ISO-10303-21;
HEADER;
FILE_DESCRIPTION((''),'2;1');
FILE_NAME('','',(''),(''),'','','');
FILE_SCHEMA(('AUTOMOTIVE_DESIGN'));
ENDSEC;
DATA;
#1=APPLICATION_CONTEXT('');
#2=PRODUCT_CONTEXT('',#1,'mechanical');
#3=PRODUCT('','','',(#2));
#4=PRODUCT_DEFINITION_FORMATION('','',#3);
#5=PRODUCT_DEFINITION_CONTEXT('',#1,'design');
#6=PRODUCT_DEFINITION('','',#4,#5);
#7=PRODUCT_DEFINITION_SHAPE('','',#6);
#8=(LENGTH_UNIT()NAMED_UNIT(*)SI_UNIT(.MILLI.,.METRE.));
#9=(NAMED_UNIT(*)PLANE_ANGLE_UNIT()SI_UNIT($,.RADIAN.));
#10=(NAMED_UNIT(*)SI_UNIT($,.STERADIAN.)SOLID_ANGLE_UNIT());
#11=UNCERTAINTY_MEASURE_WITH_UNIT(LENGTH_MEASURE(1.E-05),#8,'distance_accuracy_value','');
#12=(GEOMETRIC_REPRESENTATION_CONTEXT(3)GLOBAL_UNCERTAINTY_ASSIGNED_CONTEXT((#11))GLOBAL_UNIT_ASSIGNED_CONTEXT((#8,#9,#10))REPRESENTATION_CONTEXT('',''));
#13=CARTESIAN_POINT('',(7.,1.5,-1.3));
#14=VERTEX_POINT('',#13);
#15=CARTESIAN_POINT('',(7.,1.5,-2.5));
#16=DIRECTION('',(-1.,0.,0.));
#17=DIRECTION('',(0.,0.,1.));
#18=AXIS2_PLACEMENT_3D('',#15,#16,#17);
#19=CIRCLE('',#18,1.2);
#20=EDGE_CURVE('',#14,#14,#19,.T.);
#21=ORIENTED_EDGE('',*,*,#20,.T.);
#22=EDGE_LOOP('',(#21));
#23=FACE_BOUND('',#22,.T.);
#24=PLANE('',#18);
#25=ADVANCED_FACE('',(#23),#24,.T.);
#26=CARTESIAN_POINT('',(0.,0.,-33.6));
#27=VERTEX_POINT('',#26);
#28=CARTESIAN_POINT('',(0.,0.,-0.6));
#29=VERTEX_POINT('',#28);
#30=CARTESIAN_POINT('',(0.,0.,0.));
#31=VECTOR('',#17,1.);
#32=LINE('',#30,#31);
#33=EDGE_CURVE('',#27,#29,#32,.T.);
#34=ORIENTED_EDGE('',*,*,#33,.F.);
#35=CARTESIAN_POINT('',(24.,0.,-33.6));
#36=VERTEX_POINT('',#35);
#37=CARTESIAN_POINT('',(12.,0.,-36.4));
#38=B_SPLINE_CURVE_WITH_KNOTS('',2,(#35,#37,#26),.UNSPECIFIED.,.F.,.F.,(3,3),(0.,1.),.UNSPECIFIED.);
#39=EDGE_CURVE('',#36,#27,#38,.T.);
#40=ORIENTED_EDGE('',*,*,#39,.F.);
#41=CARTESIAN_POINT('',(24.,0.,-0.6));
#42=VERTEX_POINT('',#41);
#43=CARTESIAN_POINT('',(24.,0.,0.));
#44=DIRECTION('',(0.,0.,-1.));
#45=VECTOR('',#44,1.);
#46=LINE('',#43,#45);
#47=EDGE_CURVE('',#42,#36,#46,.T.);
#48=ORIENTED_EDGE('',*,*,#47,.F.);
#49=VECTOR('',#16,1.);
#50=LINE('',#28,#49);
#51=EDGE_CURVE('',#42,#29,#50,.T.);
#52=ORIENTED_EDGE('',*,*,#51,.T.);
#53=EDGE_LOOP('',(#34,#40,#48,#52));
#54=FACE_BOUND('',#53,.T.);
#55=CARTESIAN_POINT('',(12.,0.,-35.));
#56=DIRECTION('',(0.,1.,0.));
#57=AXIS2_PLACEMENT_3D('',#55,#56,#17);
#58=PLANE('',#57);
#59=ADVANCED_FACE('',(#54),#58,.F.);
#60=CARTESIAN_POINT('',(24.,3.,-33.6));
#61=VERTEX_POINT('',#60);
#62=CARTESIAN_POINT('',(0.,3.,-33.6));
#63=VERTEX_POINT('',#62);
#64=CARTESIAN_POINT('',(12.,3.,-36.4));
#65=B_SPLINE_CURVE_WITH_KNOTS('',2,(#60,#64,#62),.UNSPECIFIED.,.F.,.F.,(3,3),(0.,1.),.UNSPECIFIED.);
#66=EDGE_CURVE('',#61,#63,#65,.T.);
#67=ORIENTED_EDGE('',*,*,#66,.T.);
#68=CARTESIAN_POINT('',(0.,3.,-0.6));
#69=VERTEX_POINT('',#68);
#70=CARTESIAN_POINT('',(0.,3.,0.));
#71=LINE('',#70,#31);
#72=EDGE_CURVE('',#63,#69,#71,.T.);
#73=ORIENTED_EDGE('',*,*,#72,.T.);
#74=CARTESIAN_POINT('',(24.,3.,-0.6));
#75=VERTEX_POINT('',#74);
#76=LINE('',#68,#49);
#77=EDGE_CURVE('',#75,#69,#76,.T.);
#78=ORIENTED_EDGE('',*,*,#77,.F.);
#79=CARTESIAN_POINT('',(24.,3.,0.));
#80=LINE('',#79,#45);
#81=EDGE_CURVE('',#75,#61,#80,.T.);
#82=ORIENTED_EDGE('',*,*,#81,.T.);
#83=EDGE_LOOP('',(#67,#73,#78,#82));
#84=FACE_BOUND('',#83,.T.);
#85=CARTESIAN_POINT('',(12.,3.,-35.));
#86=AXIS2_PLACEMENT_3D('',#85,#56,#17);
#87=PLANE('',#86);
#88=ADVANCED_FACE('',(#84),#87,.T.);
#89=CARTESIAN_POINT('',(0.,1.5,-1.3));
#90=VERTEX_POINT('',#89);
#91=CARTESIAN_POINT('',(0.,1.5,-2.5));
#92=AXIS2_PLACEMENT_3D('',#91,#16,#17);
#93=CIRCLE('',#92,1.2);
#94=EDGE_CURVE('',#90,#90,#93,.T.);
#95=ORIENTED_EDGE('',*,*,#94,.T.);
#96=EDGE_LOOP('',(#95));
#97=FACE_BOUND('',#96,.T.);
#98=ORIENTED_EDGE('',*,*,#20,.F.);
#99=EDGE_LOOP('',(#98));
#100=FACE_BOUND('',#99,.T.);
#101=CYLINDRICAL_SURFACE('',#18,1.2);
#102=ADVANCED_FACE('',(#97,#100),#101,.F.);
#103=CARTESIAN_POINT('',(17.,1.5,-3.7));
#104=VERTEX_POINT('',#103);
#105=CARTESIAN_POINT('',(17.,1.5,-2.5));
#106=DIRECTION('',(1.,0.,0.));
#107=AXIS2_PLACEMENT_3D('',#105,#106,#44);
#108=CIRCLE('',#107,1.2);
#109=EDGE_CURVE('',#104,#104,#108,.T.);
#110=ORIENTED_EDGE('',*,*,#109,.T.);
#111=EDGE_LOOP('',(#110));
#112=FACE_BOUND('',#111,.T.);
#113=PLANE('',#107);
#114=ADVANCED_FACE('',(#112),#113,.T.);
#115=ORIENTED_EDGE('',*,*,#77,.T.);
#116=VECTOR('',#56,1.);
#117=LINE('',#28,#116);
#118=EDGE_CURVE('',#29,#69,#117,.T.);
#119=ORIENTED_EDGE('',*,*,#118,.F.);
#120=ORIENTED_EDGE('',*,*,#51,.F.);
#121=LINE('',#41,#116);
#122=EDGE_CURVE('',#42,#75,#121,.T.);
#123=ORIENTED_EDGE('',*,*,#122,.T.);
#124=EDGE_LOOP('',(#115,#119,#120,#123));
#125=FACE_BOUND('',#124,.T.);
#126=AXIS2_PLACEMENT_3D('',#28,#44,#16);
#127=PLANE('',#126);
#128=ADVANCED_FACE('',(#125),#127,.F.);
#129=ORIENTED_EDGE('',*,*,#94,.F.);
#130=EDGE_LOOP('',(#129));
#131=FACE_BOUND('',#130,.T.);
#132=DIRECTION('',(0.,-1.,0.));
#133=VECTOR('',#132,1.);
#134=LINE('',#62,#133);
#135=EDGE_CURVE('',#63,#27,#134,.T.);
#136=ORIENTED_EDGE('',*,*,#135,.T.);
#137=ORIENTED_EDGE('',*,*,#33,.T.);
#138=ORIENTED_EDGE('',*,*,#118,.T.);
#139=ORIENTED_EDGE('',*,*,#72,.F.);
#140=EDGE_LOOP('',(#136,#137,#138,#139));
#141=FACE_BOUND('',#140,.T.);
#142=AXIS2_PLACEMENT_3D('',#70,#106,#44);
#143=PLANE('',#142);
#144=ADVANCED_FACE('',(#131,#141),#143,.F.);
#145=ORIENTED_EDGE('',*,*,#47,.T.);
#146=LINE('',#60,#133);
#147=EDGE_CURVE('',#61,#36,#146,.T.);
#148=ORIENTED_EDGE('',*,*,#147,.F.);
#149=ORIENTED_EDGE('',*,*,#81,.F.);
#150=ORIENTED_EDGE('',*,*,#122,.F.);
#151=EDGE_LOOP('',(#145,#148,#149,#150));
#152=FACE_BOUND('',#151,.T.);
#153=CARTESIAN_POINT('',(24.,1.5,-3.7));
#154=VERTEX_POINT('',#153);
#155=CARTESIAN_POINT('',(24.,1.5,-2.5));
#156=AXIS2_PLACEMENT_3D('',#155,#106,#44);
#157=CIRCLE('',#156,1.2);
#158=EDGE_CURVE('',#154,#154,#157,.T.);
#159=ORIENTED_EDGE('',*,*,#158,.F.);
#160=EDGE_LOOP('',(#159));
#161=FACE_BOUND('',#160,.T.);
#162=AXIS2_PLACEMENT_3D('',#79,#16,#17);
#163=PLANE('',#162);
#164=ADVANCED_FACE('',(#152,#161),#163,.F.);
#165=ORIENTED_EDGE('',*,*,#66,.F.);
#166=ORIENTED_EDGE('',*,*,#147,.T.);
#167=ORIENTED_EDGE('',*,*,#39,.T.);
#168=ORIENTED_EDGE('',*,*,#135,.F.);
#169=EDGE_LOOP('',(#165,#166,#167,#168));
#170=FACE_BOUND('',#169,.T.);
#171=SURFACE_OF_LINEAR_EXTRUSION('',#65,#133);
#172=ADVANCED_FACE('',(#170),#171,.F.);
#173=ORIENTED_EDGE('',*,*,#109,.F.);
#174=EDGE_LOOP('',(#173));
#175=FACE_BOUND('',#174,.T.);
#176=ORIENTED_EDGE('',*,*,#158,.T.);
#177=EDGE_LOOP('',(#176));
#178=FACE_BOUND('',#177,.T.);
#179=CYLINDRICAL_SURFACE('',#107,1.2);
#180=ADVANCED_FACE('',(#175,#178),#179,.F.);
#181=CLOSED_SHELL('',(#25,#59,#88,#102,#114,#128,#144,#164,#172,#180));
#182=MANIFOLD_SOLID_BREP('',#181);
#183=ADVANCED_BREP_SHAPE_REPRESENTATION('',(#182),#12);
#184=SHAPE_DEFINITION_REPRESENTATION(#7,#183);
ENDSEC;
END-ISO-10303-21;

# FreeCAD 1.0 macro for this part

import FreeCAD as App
import Part
import Sketcher
Q = App.Units.Quantity


def add_polygon(sketch, points):
    """Adds a closed chain of lines whose ends are joined by coincident constraints."""
    first, n = sketch.GeometryCount, len(points)
    for a, b in zip(points, points[1:] + points[:1]):
        sketch.addGeometry(Part.LineSegment(App.Vector(*a, 0), App.Vector(*b, 0)), False)
    for i in range(n):
        sketch.addConstraint(Sketcher.Constraint("Coincident", first + i, 2, first + (i + 1) % n, 1))

doc = App.newDocument("Part")
body = doc.addObject("PartDesign::Body", "Body")

sketch1 = doc.addObject("Sketcher::SketchObject", "Sketch")
body.addObject(sketch1)
sketch1.AttachmentSupport = (doc.XZ_Plane, [""])
sketch1.MapMode = "FlatFace"
sketch1.addGeometry([
    Part.LineSegment(App.Vector(0, 0, 0), App.Vector(24, 0, 0)),
    Part.LineSegment(App.Vector(24, 0, 0), App.Vector(24, -33.6, 0)),
    Part.BSplineCurve([App.Vector(0, -33.6, 0), App.Vector(12, -36.4, 0), App.Vector(24, -33.6, 0)], [3, 3], [0, 1], False, 2, [1, 1, 1], False),
    Part.LineSegment(App.Vector(0, -33.6, 0), App.Vector(0, 0, 0)),
], False)
sketch1.addConstraint([
    Sketcher.Constraint("Block", 2),
    Sketcher.Constraint("Coincident", 0, 2, 1, 1),
    Sketcher.Constraint("Coincident", 1, 2, 2, 2),
    Sketcher.Constraint("Coincident", 2, 1, 3, 1),
    Sketcher.Constraint("Coincident", 3, 2, 0, 1),
    Sketcher.Constraint("Horizontal", 0),
    Sketcher.Constraint("Vertical", 1),
    Sketcher.Constraint("Vertical", 3),
    Sketcher.Constraint("PointOnObject", 0, 2, -1),
])
pad1 = doc.addObject("PartDesign::Pad", "Pad")
body.addObject(pad1)
pad1.Profile = sketch1
pad1.Length = 3
pad1.Reversed = True

sketch2 = doc.addObject("Sketcher::SketchObject", "Sketch001")
body.addObject(sketch2)
sketch2.AttachmentSupport = (doc.YZ_Plane, [""])
sketch2.MapMode = "FlatFace"
sketch2.AttachmentOffset = App.Placement(App.Vector(0, 0, 24), App.Rotation())
sketch2.addGeometry(Part.Circle(App.Vector(1.5, -2.5, 0), App.Vector(0, 0, 1), 1.2), False)
sketch2.addConstraint([
    Sketcher.Constraint("Diameter", 0, Q("2.4 mm")),
    Sketcher.Constraint("DistanceX", -1, 1, 0, 3, Q("1.5 mm")),
    Sketcher.Constraint("DistanceY", 0, 3, -1, 1, Q("2.5 mm")),
])
pocket1 = doc.addObject("PartDesign::Pocket", "Pocket")
body.addObject(pocket1)
pocket1.Profile = sketch2
pocket1.Length = 7

sketch3 = doc.addObject("Sketcher::SketchObject", "Sketch002")
body.addObject(sketch3)
sketch3.AttachmentSupport = (doc.YZ_Plane, [""])
sketch3.MapMode = "FlatFace"
sketch3.addGeometry(Part.Circle(App.Vector(1.5, -2.5, 0), App.Vector(0, 0, 1), 1.2), False)
sketch3.addConstraint([
    Sketcher.Constraint("Diameter", 0, Q("2.4 mm")),
    Sketcher.Constraint("DistanceX", -1, 1, 0, 3, Q("1.5 mm")),
    Sketcher.Constraint("DistanceY", 0, 3, -1, 1, Q("2.5 mm")),
])
pocket2 = doc.addObject("PartDesign::Pocket", "Pocket001")
body.addObject(pocket2)
pocket2.Profile = sketch3
pocket2.Length = 7
pocket2.Reversed = True

sketch4 = doc.addObject("Sketcher::SketchObject", "Sketch003")
body.addObject(sketch4)
sketch4.AttachmentSupport = (doc.XZ_Plane, [""])
sketch4.MapMode = "FlatFace"
sketch4.AttachmentOffset = App.Placement(App.Vector(0, 0, -3), App.Rotation())
add_polygon(sketch4, [(0, -0.6), (0, 0), (24, 0), (24, -0.6)])
sketch4.addConstraint([
    Sketcher.Constraint("Vertical", 0),
    Sketcher.Constraint("Horizontal", 1),
    Sketcher.Constraint("Vertical", 2),
    Sketcher.Constraint("Horizontal", 3),
    Sketcher.Constraint("Coincident", 0, 2, -1, 1),
    Sketcher.Constraint("DistanceX", 1, 1, 1, 2, Q("24 mm")),
    Sketcher.Constraint("DistanceY", 0, 1, 0, 2, Q("0.6 mm")),
])
pocket3 = doc.addObject("PartDesign::Pocket", "Pocket002")
body.addObject(pocket3)
pocket3.Profile = sketch4
pocket3.Type = "ThroughAll"
pocket3.Reversed = True

doc.recompute()
